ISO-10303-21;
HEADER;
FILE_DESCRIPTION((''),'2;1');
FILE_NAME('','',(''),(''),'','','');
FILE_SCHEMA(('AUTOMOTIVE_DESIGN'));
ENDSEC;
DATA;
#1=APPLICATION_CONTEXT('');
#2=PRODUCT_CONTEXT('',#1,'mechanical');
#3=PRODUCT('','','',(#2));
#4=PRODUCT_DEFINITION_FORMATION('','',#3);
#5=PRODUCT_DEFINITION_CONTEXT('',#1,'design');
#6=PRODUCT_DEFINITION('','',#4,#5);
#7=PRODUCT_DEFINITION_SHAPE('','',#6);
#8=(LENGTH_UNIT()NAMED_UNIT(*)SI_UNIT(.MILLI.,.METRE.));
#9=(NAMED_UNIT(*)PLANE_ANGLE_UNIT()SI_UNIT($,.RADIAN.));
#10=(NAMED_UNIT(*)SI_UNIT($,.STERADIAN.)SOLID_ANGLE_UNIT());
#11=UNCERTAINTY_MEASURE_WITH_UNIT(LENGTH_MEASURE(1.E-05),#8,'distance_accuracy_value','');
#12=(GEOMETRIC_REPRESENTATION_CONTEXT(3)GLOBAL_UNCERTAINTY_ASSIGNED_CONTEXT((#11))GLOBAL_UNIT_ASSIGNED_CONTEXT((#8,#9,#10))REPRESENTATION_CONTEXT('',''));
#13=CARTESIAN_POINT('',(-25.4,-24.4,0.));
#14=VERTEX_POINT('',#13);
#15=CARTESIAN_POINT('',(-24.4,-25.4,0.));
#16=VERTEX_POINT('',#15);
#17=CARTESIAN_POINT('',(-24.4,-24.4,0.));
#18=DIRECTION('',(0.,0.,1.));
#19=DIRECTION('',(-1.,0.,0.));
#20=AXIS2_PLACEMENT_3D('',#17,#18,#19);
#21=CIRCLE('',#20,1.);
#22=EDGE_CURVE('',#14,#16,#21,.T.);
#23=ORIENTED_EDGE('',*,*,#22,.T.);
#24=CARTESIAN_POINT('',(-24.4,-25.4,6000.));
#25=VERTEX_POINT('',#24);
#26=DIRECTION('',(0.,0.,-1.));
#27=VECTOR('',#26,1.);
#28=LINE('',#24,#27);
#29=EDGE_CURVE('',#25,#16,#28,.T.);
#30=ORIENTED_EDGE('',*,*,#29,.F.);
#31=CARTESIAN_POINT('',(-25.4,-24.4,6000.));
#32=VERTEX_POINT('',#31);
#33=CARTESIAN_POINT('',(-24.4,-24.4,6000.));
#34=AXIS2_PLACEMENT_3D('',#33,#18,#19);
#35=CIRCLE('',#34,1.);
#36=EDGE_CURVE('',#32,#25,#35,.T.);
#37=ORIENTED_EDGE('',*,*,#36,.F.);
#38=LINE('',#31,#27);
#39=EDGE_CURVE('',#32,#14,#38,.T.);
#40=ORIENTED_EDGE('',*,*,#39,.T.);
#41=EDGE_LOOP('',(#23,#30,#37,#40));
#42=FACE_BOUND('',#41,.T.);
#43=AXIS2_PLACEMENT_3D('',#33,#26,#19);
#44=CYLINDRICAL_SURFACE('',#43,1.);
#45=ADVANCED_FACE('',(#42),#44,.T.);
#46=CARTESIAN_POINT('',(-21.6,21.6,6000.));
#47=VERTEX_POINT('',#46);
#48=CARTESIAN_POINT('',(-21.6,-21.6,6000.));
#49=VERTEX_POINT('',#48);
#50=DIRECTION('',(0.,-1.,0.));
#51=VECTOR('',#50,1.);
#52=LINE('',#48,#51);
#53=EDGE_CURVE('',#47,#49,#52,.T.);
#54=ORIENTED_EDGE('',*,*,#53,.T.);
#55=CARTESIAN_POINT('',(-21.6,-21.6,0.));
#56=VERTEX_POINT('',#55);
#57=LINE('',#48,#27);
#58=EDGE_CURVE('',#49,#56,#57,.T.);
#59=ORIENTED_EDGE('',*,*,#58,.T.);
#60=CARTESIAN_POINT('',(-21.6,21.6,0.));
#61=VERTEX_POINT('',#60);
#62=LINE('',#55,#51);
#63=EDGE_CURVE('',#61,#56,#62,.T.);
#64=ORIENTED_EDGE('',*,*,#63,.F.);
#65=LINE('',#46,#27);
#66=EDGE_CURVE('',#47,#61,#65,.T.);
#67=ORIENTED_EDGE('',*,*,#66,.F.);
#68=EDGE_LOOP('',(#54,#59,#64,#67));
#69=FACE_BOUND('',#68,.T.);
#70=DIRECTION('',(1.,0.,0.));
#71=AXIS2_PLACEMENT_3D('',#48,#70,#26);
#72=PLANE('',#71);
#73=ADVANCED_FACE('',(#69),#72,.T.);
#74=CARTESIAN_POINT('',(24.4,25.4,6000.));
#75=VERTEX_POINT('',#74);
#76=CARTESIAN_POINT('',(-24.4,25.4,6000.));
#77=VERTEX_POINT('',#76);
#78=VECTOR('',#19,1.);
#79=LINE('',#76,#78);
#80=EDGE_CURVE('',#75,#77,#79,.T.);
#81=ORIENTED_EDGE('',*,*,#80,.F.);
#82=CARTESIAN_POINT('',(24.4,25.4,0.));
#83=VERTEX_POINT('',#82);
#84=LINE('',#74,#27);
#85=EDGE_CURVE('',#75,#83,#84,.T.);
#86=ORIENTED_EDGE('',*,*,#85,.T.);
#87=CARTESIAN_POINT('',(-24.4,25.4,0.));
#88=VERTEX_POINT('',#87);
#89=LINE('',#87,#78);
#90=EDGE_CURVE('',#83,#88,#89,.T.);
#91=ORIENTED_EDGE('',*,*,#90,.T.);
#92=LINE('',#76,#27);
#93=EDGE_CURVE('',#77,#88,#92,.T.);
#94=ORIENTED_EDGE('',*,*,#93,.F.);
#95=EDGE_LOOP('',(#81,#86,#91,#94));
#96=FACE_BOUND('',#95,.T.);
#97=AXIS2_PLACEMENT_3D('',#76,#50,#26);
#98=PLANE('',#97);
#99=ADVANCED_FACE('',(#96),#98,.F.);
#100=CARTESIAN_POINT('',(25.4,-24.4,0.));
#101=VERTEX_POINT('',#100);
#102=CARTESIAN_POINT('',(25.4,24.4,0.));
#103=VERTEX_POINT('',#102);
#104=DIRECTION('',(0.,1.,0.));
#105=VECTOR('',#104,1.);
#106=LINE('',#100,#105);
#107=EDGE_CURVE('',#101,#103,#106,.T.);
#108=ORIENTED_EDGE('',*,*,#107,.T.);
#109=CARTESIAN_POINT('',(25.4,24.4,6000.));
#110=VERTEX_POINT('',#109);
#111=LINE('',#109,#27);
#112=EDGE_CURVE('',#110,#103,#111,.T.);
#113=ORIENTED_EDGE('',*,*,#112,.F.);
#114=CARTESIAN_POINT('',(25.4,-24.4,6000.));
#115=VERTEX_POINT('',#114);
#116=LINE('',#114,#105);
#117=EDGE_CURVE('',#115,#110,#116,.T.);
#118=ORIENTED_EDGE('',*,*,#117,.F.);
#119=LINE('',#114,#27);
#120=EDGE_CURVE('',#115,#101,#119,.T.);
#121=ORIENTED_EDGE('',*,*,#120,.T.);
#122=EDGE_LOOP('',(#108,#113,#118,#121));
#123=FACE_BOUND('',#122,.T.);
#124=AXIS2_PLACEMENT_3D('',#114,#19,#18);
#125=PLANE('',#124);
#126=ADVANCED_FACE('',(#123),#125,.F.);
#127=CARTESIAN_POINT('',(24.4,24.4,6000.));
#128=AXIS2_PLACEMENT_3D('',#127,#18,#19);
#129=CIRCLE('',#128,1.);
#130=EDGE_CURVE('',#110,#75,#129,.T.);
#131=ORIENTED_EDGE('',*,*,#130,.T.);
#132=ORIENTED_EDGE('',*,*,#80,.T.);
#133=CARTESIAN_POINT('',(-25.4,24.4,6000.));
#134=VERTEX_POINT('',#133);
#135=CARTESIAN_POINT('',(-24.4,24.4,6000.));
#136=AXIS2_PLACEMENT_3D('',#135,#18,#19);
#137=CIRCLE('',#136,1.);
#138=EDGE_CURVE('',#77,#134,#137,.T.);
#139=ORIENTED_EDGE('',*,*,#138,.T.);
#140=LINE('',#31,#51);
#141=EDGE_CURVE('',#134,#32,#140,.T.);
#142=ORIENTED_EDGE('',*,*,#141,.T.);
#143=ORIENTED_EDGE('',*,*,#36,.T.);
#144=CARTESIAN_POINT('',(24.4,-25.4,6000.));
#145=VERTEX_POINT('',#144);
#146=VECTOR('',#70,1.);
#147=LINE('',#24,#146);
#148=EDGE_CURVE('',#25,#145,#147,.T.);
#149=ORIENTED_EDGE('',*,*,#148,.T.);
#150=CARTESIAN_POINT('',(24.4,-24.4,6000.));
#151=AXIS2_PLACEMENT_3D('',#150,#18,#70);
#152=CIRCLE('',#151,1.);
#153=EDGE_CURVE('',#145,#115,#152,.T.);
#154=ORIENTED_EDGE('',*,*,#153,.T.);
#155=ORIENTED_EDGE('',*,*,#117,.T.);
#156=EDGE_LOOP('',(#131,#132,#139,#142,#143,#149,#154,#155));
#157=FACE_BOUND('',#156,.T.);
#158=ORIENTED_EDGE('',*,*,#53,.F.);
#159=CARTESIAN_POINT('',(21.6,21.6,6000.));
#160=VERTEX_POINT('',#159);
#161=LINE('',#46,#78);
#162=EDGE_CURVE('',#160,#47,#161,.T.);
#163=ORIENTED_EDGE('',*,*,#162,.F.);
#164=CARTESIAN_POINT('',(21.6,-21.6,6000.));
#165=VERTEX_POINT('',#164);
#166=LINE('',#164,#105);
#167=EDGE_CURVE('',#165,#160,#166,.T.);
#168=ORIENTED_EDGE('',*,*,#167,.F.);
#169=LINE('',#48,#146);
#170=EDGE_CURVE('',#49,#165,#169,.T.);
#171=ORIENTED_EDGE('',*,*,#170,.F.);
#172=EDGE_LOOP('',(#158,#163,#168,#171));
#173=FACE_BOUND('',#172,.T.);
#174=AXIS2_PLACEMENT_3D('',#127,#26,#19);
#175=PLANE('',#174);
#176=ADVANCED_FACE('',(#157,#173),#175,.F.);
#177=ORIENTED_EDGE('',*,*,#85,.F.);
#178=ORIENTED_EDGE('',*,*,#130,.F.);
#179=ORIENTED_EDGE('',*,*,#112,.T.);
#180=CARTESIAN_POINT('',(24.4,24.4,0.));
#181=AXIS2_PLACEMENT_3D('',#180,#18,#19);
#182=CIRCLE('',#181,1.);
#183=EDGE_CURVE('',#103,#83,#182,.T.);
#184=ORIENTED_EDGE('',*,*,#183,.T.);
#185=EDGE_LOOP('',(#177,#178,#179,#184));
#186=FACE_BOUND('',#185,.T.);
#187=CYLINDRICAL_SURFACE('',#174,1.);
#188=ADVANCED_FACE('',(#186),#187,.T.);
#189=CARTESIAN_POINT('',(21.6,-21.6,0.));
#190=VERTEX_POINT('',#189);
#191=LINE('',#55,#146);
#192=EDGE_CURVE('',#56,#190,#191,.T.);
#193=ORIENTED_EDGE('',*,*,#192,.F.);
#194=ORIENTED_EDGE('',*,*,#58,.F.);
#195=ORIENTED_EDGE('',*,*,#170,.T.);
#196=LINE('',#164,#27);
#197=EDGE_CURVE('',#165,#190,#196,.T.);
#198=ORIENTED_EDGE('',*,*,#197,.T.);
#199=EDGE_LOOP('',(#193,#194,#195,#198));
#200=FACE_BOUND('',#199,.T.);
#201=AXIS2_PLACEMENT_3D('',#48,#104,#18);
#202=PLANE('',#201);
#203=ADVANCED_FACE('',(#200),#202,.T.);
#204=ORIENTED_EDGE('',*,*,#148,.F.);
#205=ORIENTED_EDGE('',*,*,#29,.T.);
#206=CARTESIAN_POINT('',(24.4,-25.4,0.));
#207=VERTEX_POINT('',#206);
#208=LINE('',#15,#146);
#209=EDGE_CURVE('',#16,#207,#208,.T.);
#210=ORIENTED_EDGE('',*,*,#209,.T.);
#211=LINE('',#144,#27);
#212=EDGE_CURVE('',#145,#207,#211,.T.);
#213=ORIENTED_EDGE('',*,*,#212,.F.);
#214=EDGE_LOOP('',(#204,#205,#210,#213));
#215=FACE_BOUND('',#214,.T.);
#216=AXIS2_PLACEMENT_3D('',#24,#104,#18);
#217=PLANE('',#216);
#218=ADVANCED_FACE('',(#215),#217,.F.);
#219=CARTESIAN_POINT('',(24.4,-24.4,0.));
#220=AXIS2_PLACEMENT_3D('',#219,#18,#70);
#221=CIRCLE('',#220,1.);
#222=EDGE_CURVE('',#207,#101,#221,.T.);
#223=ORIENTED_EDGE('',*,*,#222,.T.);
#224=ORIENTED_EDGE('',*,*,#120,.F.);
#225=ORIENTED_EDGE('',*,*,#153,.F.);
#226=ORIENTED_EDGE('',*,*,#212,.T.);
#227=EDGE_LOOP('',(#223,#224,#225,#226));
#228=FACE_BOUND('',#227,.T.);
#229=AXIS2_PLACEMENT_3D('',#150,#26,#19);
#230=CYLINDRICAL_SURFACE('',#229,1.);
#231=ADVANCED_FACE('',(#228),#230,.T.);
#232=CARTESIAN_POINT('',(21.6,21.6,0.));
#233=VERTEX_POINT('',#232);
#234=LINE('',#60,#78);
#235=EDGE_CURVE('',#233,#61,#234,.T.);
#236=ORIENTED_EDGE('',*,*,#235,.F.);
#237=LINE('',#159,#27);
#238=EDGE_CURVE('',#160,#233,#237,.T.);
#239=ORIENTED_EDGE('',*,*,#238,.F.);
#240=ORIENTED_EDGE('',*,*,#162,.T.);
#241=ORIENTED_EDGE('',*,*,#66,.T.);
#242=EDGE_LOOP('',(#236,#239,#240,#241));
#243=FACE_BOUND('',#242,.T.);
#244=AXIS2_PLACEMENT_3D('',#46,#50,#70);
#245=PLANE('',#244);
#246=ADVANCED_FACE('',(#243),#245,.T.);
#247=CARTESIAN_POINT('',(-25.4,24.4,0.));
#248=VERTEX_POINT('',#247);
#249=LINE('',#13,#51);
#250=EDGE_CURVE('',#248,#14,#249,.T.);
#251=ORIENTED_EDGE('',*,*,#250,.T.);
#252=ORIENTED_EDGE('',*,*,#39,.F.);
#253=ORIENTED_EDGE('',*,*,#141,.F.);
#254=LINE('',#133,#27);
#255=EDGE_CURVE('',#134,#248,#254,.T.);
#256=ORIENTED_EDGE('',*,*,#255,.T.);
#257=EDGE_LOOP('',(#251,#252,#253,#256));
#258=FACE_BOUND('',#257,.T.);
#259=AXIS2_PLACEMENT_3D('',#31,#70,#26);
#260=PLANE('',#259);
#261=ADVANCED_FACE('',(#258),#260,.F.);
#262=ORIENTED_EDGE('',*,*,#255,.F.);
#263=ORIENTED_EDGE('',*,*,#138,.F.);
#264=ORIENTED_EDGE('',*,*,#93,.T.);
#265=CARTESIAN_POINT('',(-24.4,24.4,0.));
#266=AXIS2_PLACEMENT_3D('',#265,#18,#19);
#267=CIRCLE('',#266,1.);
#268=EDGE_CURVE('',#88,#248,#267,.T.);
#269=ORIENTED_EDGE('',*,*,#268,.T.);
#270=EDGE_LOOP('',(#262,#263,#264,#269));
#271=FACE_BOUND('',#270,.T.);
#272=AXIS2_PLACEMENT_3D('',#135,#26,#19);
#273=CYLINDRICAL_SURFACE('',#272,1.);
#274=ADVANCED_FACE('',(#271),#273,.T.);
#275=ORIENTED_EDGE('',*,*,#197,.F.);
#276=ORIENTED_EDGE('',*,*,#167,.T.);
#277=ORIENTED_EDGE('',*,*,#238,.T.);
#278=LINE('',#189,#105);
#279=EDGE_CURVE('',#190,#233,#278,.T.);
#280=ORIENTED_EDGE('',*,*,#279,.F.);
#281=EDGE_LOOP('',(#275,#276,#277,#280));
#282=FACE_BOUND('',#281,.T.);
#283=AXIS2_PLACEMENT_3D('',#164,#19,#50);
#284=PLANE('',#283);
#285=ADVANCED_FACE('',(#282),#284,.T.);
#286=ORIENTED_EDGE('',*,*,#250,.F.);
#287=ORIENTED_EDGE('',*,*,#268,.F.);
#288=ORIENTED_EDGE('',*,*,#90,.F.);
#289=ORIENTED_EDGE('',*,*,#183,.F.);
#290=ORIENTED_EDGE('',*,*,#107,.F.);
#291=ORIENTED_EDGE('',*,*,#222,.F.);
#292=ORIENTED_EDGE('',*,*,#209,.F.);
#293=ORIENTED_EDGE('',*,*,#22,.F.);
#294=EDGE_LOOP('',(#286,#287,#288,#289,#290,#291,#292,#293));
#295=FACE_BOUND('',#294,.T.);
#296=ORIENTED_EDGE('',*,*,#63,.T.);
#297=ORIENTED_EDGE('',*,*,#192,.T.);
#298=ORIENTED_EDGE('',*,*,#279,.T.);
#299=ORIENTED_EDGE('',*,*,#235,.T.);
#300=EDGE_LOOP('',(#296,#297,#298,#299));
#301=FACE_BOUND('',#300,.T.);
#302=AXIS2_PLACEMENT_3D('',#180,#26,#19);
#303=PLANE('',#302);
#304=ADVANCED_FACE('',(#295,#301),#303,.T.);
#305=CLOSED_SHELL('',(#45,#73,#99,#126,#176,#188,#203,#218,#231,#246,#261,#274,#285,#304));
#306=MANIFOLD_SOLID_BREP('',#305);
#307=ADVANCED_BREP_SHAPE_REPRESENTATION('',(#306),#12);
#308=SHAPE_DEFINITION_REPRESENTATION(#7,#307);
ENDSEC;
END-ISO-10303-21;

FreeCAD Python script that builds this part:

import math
import FreeCAD as App
import Part
import Sketcher

V = App.Vector
Q = App.Units.Quantity


def add_polygon(sketch, points):
    """Adds a closed chain of lines whose ends are joined by coincident constraints."""
    first, n = sketch.GeometryCount, len(points)
    for a, b in zip(points, points[1:] + points[:1]):
        sketch.addGeometry(Part.LineSegment(App.Vector(*a, 0), App.Vector(*b, 0)), False)
    for i in range(n):
        sketch.addConstraint(Sketcher.Constraint("Coincident", first + i, 2, first + (i + 1) % n, 1))

doc = App.newDocument("Part")
body = doc.addObject("PartDesign::Body", "Body")

# Sketch on XY plane
sketch1 = body.newObject("Sketcher::SketchObject", "Sketch")
sketch1.AttachmentSupport = (doc.getObject("XY_Plane"), [""])
sketch1.MapMode = "FlatFace"
sketch1.addGeometry(Part.LineSegment(V(-24.4, -25.4, 0), V(24.4, -25.4, 0)), False)  # 0
sketch1.addGeometry(Part.ArcOfCircle(Part.Circle(V(24.4, -24.4, 0), V(0, 0, 1), 1), math.radians(-90), math.radians(0)), False)  # 1
sketch1.addGeometry(Part.LineSegment(V(25.4, -24.4, 0), V(25.4, 24.4, 0)), False)  # 2
sketch1.addGeometry(Part.ArcOfCircle(Part.Circle(V(24.4, 24.4, 0), V(0, 0, 1), 1), math.radians(0), math.radians(90)), False)  # 3
sketch1.addGeometry(Part.LineSegment(V(24.4, 25.4, 0), V(-24.4, 25.4, 0)), False)  # 4
sketch1.addGeometry(Part.ArcOfCircle(Part.Circle(V(-24.4, 24.4, 0), V(0, 0, 1), 1), math.radians(90), math.radians(180)), False)  # 5
sketch1.addGeometry(Part.LineSegment(V(-25.4, 24.4, 0), V(-25.4, -24.4, 0)), False)  # 6
sketch1.addGeometry(Part.ArcOfCircle(Part.Circle(V(-24.4, -24.4, 0), V(0, 0, 1), 1), math.radians(-180), math.radians(-90)), False)  # 7
add_polygon(sketch1, [(21.6, -21.6), (-21.6, -21.6), (-21.6, 21.6), (21.6, 21.6)])  # lines 8-11
sketch1.addConstraint(Sketcher.Constraint("Tangent", 0, 2, 1, 1))
sketch1.addConstraint(Sketcher.Constraint("Tangent", 1, 2, 2, 1))
sketch1.addConstraint(Sketcher.Constraint("Tangent", 2, 2, 3, 1))
sketch1.addConstraint(Sketcher.Constraint("Tangent", 3, 2, 4, 1))
sketch1.addConstraint(Sketcher.Constraint("Tangent", 4, 2, 5, 1))
sketch1.addConstraint(Sketcher.Constraint("Tangent", 5, 2, 6, 1))
sketch1.addConstraint(Sketcher.Constraint("Tangent", 6, 2, 7, 1))
sketch1.addConstraint(Sketcher.Constraint("Tangent", 7, 2, 0, 1))
sketch1.addConstraint(Sketcher.Constraint("Horizontal", 0))
sketch1.addConstraint(Sketcher.Constraint("Vertical", 2))
sketch1.addConstraint(Sketcher.Constraint("Horizontal", 4))
sketch1.addConstraint(Sketcher.Constraint("Vertical", 6))
sketch1.addConstraint(Sketcher.Constraint("Horizontal", 8))
sketch1.addConstraint(Sketcher.Constraint("Vertical", 9))
sketch1.addConstraint(Sketcher.Constraint("Horizontal", 10))
sketch1.addConstraint(Sketcher.Constraint("Vertical", 11))
sketch1.addConstraint(Sketcher.Constraint("Equal", 1, 3))
sketch1.addConstraint(Sketcher.Constraint("Equal", 3, 5))
sketch1.addConstraint(Sketcher.Constraint("Equal", 5, 7))
sketch1.addConstraint(Sketcher.Constraint("Symmetric", 1, 3, 5, 3, -1, 1))
sketch1.addConstraint(Sketcher.Constraint("Symmetric", 8, 2, 10, 2, -1, 1))
sketch1.addConstraint(Sketcher.Constraint("Equal", 4, 2))
sketch1.addConstraint(Sketcher.Constraint("Equal", 10, 9))
sketch1.addConstraint(Sketcher.Constraint("Radius", 1, Q("1 mm")))
sketch1.addConstraint(Sketcher.Constraint("DistanceX", 0, 1, 0, 2, Q("48.8 mm")))
sketch1.addConstraint(Sketcher.Constraint("DistanceX", 8, 2, 8, 1, Q("43.2 mm")))
pad1 = body.newObject("PartDesign::Pad", "Pad")
pad1.Profile = sketch1
pad1.Length = 6000

doc.recompute()
